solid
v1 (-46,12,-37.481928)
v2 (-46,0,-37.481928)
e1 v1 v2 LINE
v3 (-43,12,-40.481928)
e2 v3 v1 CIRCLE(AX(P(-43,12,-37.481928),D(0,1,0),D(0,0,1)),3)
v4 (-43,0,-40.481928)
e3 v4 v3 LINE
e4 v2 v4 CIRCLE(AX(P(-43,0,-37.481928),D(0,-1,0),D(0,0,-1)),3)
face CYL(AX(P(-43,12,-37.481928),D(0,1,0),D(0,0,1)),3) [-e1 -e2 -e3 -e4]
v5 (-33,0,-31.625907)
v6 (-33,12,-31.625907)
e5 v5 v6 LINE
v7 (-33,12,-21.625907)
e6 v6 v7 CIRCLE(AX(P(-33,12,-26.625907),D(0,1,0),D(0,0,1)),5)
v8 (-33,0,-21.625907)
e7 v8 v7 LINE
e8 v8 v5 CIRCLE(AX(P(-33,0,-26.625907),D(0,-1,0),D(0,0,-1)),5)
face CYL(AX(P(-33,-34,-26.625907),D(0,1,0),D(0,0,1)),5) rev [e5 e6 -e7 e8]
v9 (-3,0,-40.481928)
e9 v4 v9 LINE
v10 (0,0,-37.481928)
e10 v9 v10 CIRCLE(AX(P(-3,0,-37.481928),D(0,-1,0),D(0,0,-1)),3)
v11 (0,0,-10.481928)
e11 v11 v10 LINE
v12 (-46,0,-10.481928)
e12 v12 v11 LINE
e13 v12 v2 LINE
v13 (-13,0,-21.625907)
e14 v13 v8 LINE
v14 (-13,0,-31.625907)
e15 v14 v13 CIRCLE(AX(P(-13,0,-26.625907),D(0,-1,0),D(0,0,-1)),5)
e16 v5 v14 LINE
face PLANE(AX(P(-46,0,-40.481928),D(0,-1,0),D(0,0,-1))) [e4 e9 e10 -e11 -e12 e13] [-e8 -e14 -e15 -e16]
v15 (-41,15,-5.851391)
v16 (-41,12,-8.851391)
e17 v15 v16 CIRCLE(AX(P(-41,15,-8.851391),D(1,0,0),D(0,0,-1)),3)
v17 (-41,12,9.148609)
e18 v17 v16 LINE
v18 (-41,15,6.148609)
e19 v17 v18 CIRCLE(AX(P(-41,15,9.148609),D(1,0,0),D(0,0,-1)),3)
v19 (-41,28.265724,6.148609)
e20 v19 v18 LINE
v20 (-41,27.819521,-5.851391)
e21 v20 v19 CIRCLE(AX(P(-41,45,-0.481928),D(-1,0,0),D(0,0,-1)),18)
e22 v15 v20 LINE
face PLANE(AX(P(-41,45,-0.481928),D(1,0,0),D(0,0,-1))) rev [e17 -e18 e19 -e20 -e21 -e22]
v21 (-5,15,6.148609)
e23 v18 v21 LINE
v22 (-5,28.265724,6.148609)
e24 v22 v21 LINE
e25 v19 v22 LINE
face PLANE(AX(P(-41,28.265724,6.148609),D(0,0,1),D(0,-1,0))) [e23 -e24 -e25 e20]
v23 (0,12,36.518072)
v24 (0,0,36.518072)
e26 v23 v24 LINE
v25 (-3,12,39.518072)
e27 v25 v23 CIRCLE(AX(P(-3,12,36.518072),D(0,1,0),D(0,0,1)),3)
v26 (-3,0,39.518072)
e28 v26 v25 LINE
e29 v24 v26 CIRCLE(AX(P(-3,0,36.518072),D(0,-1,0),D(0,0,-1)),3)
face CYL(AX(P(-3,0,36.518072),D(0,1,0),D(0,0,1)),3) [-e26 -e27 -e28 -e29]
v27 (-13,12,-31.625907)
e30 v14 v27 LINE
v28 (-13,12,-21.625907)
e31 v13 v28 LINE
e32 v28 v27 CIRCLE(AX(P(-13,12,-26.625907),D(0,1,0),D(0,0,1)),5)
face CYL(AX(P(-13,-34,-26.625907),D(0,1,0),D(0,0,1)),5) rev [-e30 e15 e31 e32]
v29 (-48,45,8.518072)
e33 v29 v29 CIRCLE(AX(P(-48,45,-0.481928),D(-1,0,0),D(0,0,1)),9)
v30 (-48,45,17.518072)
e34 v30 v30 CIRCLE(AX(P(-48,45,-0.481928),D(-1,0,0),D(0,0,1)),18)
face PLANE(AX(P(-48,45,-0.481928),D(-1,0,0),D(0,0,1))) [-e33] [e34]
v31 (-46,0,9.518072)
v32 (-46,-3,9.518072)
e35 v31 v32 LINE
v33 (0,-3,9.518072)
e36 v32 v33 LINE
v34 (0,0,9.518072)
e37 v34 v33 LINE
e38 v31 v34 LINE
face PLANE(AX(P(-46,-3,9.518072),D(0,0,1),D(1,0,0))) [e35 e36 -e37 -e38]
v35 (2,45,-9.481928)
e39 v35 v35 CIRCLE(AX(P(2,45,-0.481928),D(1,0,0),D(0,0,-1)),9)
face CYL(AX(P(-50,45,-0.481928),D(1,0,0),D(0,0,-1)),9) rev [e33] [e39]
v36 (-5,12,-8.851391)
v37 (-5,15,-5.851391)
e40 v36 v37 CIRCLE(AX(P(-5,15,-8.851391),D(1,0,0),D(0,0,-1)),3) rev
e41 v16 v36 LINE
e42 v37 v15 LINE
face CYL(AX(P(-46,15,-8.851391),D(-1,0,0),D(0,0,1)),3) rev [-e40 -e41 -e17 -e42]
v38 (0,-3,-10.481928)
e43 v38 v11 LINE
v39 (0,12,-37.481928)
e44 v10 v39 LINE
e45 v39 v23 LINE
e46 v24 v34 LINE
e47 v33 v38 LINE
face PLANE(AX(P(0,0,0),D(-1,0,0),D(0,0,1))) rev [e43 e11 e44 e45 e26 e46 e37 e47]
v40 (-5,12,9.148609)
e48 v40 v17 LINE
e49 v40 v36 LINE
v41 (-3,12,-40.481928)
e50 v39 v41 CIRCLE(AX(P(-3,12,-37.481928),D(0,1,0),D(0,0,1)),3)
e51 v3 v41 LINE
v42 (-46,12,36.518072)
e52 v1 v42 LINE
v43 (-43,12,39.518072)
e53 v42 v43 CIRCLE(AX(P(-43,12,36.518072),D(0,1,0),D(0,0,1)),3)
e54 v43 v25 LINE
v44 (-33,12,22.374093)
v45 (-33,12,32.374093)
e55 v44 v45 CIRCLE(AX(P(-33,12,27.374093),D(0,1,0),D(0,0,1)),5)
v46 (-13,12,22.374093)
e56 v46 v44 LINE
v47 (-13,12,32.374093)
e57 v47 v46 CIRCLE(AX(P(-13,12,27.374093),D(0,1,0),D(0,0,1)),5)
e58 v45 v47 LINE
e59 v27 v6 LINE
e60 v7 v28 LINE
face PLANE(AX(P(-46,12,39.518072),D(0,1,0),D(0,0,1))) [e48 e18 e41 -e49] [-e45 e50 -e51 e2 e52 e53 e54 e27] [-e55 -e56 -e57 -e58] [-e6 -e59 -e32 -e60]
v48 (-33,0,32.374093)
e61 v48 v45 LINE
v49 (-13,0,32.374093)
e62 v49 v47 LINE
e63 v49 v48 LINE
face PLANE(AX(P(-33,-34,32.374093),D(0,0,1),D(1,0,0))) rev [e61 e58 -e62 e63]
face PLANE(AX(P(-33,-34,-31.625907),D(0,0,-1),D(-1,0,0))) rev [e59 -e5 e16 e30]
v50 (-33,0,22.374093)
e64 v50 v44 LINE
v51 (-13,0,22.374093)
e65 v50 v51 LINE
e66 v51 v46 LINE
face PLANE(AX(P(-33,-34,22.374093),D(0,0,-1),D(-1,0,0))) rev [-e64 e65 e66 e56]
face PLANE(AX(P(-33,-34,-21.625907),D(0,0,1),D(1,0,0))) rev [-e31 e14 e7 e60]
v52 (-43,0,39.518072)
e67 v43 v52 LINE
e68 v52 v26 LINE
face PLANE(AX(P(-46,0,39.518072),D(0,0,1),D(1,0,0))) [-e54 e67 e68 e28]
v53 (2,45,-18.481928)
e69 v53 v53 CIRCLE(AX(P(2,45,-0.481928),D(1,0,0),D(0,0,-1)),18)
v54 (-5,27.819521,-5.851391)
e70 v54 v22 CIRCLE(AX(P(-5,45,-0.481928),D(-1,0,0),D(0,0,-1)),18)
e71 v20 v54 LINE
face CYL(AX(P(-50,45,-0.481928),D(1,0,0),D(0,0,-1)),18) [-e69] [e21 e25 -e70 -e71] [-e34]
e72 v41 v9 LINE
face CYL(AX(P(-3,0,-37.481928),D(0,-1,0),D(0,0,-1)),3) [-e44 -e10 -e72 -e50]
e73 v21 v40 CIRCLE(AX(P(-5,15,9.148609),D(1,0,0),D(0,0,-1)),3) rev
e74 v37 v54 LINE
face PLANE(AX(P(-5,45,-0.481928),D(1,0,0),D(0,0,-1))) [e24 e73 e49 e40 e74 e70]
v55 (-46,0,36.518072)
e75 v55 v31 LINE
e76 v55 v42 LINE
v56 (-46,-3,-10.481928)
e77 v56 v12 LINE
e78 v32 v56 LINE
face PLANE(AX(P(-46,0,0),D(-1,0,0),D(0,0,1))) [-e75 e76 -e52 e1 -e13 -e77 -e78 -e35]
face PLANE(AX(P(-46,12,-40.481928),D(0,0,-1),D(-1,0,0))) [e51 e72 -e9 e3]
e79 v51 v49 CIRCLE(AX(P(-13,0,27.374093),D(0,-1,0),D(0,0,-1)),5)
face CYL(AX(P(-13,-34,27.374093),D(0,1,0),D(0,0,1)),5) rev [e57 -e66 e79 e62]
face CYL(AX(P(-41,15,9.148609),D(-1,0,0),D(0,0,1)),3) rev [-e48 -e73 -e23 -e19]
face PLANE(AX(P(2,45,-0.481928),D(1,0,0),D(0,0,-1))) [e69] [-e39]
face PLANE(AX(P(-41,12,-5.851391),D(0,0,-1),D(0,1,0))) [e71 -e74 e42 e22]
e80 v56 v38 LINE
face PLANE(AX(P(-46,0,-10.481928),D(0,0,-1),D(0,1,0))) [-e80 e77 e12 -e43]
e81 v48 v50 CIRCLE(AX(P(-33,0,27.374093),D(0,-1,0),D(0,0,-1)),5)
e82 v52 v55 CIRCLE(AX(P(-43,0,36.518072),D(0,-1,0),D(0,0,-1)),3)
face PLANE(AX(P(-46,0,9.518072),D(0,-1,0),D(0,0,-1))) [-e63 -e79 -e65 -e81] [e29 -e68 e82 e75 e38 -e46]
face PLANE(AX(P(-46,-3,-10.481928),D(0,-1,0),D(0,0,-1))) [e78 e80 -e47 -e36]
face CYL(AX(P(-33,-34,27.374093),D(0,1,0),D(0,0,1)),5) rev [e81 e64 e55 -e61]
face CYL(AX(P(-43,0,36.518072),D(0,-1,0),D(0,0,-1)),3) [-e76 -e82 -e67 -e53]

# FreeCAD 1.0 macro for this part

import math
import FreeCAD as App
import Part
import Sketcher

V = App.Vector
Q = App.Units.Quantity


def edges_at(feature, points):
    """Names of the edges that pass closest to the given points."""
    edges = feature.Shape.Edges
    near = lambda p: min(range(len(edges)), key=lambda i: edges[i].distToShape(Part.Vertex(*p))[0])
    return sorted({f"Edge{near(p) + 1}" for p in points})


def add_polygon(sketch, points):
    """Adds a closed chain of lines whose ends are joined by coincident constraints."""
    first, n = sketch.GeometryCount, len(points)
    for a, b in zip(points, points[1:] + points[:1]):
        sketch.addGeometry(Part.LineSegment(App.Vector(*a, 0), App.Vector(*b, 0)), False)
    for i in range(n):
        sketch.addConstraint(Sketcher.Constraint("Coincident", first + i, 2, first + (i + 1) % n, 1))

doc = App.newDocument("Part")
body = doc.addObject("PartDesign::Body", "Body")

# Sketch on YZ plane
sketch1 = body.newObject("Sketcher::SketchObject", "Sketch")
sketch1.AttachmentSupport = (doc.getObject("YZ_Plane"), [""])
sketch1.MapMode = "FlatFace"
add_polygon(sketch1, [(12, 39.518072), (0, 39.518072), (0, 9.518072), (-3, 9.518072), (-3, -10.481928), (0, -10.481928), (0, -40.481928), (12, -40.481928)])  # lines 0-7
sketch1.addConstraint(Sketcher.Constraint("Horizontal", 0))
sketch1.addConstraint(Sketcher.Constraint("Vertical", 1))
sketch1.addConstraint(Sketcher.Constraint("Horizontal", 2))
sketch1.addConstraint(Sketcher.Constraint("Vertical", 3))
sketch1.addConstraint(Sketcher.Constraint("Horizontal", 4))
sketch1.addConstraint(Sketcher.Constraint("Vertical", 5))
sketch1.addConstraint(Sketcher.Constraint("Horizontal", 6))
sketch1.addConstraint(Sketcher.Constraint("Vertical", 7))
sketch1.addConstraint(Sketcher.Constraint("PointOnObject", 0, 2, -2))
sketch1.addConstraint(Sketcher.Constraint("PointOnObject", 4, 2, -2))
sketch1.addConstraint(Sketcher.Constraint("Equal", 1, 5))
sketch1.addConstraint(Sketcher.Constraint("DistanceX", 0, 2, 0, 1, Q("12 mm")))
sketch1.addConstraint(Sketcher.Constraint("DistanceX", 2, 2, 2, 1, Q("3 mm")))
sketch1.addConstraint(Sketcher.Constraint("DistanceY", 1, 2, 1, 1, Q("30 mm")))
sketch1.addConstraint(Sketcher.Constraint("DistanceY", 3, 2, 3, 1, Q("20 mm")))
sketch1.addConstraint(Sketcher.Constraint("DistanceY", -1, 1, 0, 2, Q("39.518072 mm")))
pad1 = body.newObject("PartDesign::Pad", "Pad")
pad1.Profile = sketch1
pad1.Length = 46
pad1.Reversed = True
doc.recompute()

fillet = body.newObject("PartDesign::Fillet", "Fillet")
fillet.Base = (pad1, edges_at(pad1, [
    (-46, 6, -40.482),
    (-46, 6, 39.518),
    (0, 6, 39.518),
    (0, 6, -40.482),
]))
fillet.Radius = 3

# Sketch on XZ plane
sketch2 = body.newObject("Sketcher::SketchObject", "Sketch001")
sketch2.AttachmentSupport = (doc.getObject("XZ_Plane"), [""])
sketch2.MapMode = "FlatFace"
sketch2.AttachmentOffset = App.Placement(V(0, 0, -12), App.Rotation())
sketch2.addGeometry(Part.LineSegment(V(-13, 22.374093, 0), V(-33, 22.374093, 0)), False)
sketch2.addGeometry(Part.ArcOfCircle(Part.Circle(V(-33, 27.374093, 0), V(0, 0, 1), 5), math.radians(90), math.radians(270)), False)
sketch2.addGeometry(Part.LineSegment(V(-33, 32.374093, 0), V(-13, 32.374093, 0)), False)
sketch2.addGeometry(Part.ArcOfCircle(Part.Circle(V(-13, 27.374093, 0), V(0, 0, 1), 5), math.radians(-90), math.radians(90)), False)
sketch2.addGeometry(Part.LineSegment(V(-13, -31.625907, 0), V(-33, -31.625907, 0)), False)
sketch2.addGeometry(Part.ArcOfCircle(Part.Circle(V(-33, -26.625907, 0), V(0, 0, 1), 5), math.radians(90), math.radians(270)), False)
sketch2.addGeometry(Part.LineSegment(V(-33, -21.625907, 0), V(-13, -21.625907, 0)), False)
sketch2.addGeometry(Part.ArcOfCircle(Part.Circle(V(-13, -26.625907, 0), V(0, 0, 1), 5), math.radians(-90), math.radians(90)), False)
sketch2.addConstraint(Sketcher.Constraint("Tangent", 0, 2, 1, 2))
sketch2.addConstraint(Sketcher.Constraint("Tangent", 1, 1, 2, 1))
sketch2.addConstraint(Sketcher.Constraint("Tangent", 2, 2, 3, 2))
sketch2.addConstraint(Sketcher.Constraint("Tangent", 3, 1, 0, 1))
sketch2.addConstraint(Sketcher.Constraint("Tangent", 4, 2, 5, 2))
sketch2.addConstraint(Sketcher.Constraint("Tangent", 5, 1, 6, 1))
sketch2.addConstraint(Sketcher.Constraint("Tangent", 6, 2, 7, 2))
sketch2.addConstraint(Sketcher.Constraint("Tangent", 7, 1, 4, 1))
sketch2.addConstraint(Sketcher.Constraint("Horizontal", 0))
sketch2.addConstraint(Sketcher.Constraint("Horizontal", 2))
sketch2.addConstraint(Sketcher.Constraint("Horizontal", 4))
sketch2.addConstraint(Sketcher.Constraint("Horizontal", 6))
sketch2.addConstraint(Sketcher.Constraint("Equal", 3, 5))
sketch2.addConstraint(Sketcher.Constraint("Vertical", 1, 3, 5, 3))
sketch2.addConstraint(Sketcher.Constraint("Vertical", 3, 3, 7, 3))
sketch2.addConstraint(Sketcher.Constraint("Radius", 1, Q("5 mm")))
sketch2.addConstraint(Sketcher.Constraint("DistanceX", 0, 2, 0, 1, Q("20 mm")))
sketch2.addConstraint(Sketcher.Constraint("DistanceX", 1, 3, -1, 1, Q("33 mm")))
sketch2.addConstraint(Sketcher.Constraint("DistanceY", 5, 3, 1, 3, Q("54 mm")))
sketch2.addConstraint(Sketcher.Constraint("DistanceY", -1, 1, 1, 3, Q("27.374093 mm")))
pocket1 = body.newObject("PartDesign::Pocket", "Pocket")
pocket1.Profile = sketch2
pocket1.Length = 46
pocket1.Reversed = True
body2 = doc.addObject("PartDesign::Body", "Body001")

# Sketch on YZ plane
sketch3 = body2.newObject("Sketcher::SketchObject", "Sketch002")
sketch3.AttachmentSupport = (doc.getObject("YZ_Plane001"), [""])
sketch3.MapMode = "FlatFace"
sketch3.addGeometry(Part.Circle(V(45, -0.481928, 0), V(0, 0, 1), 18), False)
sketch3.addGeometry(Part.Circle(V(45, -0.481928, 0), V(0, 0, 1), 9), False)
sketch3.addConstraint(Sketcher.Constraint("Coincident", 1, 3, 0, 3))
sketch3.addConstraint(Sketcher.Constraint("Diameter", 0, Q("36 mm")))
sketch3.addConstraint(Sketcher.Constraint("Diameter", 1, Q("18 mm")))
sketch3.addConstraint(Sketcher.Constraint("DistanceX", -1, 1, 0, 3, Q("45 mm")))
sketch3.addConstraint(Sketcher.Constraint("DistanceY", 0, 3, -1, 1, Q("0.481928 mm")))
pad2 = body2.newObject("PartDesign::Pad", "Pad001")
pad2.Profile = sketch3
pad2.Length = 50
pad2.Reversed = True

# Sketch on YZ plane
sketch4 = body2.newObject("Sketcher::SketchObject", "Sketch003")
sketch4.AttachmentSupport = (doc.getObject("YZ_Plane001"), [""])
sketch4.MapMode = "FlatFace"
sketch4.addGeometry(Part.Circle(V(45, -0.481928, 0), V(0, 0, 1), 18), False)
sketch4.addGeometry(Part.Circle(V(45, -0.481928, 0), V(0, 0, 1), 9), False)
sketch4.addConstraint(Sketcher.Constraint("Coincident", 1, 3, 0, 3))
sketch4.addConstraint(Sketcher.Constraint("Diameter", 0, Q("36 mm")))
sketch4.addConstraint(Sketcher.Constraint("Diameter", 1, Q("18 mm")))
sketch4.addConstraint(Sketcher.Constraint("DistanceX", -1, 1, 0, 3, Q("45 mm")))
sketch4.addConstraint(Sketcher.Constraint("DistanceY", 0, 3, -1, 1, Q("0.481928 mm")))
pad3 = body2.newObject("PartDesign::Pad", "Pad002")
pad3.Profile = sketch4
pad3.Length = 2

# Sketch on YZ plane
sketch5 = body2.newObject("Sketcher::SketchObject", "Sketch004")
sketch5.AttachmentSupport = (doc.getObject("YZ_Plane001"), [""])
sketch5.MapMode = "FlatFace"
sketch5.AttachmentOffset = App.Placement(V(0, 0, -50), App.Rotation())
sketch5.addGeometry(Part.Circle(V(45, -0.481928, 0), V(0, 0, 1), 18), False)
sketch5.addGeometry(Part.Circle(V(45, -0.481928, 0), V(0, 0, 1), 9), False)
sketch5.addConstraint(Sketcher.Constraint("Coincident", 1, 3, 0, 3))
sketch5.addConstraint(Sketcher.Constraint("Diameter", 0, Q("36 mm")))
sketch5.addConstraint(Sketcher.Constraint("Diameter", 1, Q("18 mm")))
sketch5.addConstraint(Sketcher.Constraint("DistanceX", -1, 1, 0, 3, Q("45 mm")))
sketch5.addConstraint(Sketcher.Constraint("DistanceY", 0, 3, -1, 1, Q("0.481928 mm")))
pocket2 = body2.newObject("PartDesign::Pocket", "Pocket001")
pocket2.Profile = sketch5
pocket2.Length = 2
pocket2.Reversed = True
body.AllowCompound = True
doc.recompute()

boolean = body.newObject("PartDesign::Boolean", "Boolean")
boolean.Type = "Fuse"
boolean.addObjects([body2])

# Sketch on YZ plane
sketch6 = body.newObject("Sketcher::SketchObject", "Sketch005")
sketch6.AttachmentSupport = (doc.getObject("YZ_Plane"), [""])
sketch6.MapMode = "FlatFace"
sketch6.AttachmentOffset = App.Placement(V(0, 0, -5), App.Rotation())
sketch6.addGeometry(Part.LineSegment(V(28.265724, 6.148609, 0), V(12, 6.148609, 0)), False)
sketch6.addGeometry(Part.LineSegment(V(12, 6.148609, 0), V(12, -5.851391, 0)), False)
sketch6.addGeometry(Part.LineSegment(V(12, -5.851391, 0), V(27.819521, -5.851391, 0)), False)
sketch6.addGeometry(Part.ArcOfCircle(Part.Circle(V(45, -0.481928, 0), V(0, 0, 1), 18), math.radians(158.385296), math.radians(197.355737)), False)
sketch6.addConstraint(Sketcher.Constraint("Coincident", 0, 2, 1, 1))
sketch6.addConstraint(Sketcher.Constraint("Coincident", 1, 2, 2, 1))
sketch6.addConstraint(Sketcher.Constraint("Coincident", 2, 2, 3, 2))
sketch6.addConstraint(Sketcher.Constraint("Coincident", 3, 1, 0, 1))
sketch6.addConstraint(Sketcher.Constraint("Horizontal", 0))
sketch6.addConstraint(Sketcher.Constraint("Vertical", 1))
sketch6.addConstraint(Sketcher.Constraint("Horizontal", 2))
sketch6.addConstraint(Sketcher.Constraint("Radius", 3, Q("18 mm")))
sketch6.addConstraint(Sketcher.Constraint("DistanceY", 1, 2, 1, 1, Q("12 mm")))
sketch6.addConstraint(Sketcher.Constraint("DistanceX", -1, 1, 3, 3, Q("45 mm")))
sketch6.addConstraint(Sketcher.Constraint("DistanceX", -1, 1, 0, 2, Q("12 mm")))
sketch6.addConstraint(Sketcher.Constraint("DistanceX", 2, 1, 2, 2, Q("15.819521 mm")))
sketch6.addConstraint(Sketcher.Constraint("DistanceY", -1, 1, 0, 2, Q("6.148609 mm")))
pad4 = body.newObject("PartDesign::Pad", "Pad003")
pad4.Profile = sketch6
pad4.Length = 36
pad4.Reversed = True
doc.recompute()

fillet2 = body.newObject("PartDesign::Fillet", "Fillet001")
fillet2.Base = (pad4, edges_at(pad4, [(-23, 12, -5.851), (-23, 12, 6.149)]))
fillet2.Radius = 3

doc.recompute()
